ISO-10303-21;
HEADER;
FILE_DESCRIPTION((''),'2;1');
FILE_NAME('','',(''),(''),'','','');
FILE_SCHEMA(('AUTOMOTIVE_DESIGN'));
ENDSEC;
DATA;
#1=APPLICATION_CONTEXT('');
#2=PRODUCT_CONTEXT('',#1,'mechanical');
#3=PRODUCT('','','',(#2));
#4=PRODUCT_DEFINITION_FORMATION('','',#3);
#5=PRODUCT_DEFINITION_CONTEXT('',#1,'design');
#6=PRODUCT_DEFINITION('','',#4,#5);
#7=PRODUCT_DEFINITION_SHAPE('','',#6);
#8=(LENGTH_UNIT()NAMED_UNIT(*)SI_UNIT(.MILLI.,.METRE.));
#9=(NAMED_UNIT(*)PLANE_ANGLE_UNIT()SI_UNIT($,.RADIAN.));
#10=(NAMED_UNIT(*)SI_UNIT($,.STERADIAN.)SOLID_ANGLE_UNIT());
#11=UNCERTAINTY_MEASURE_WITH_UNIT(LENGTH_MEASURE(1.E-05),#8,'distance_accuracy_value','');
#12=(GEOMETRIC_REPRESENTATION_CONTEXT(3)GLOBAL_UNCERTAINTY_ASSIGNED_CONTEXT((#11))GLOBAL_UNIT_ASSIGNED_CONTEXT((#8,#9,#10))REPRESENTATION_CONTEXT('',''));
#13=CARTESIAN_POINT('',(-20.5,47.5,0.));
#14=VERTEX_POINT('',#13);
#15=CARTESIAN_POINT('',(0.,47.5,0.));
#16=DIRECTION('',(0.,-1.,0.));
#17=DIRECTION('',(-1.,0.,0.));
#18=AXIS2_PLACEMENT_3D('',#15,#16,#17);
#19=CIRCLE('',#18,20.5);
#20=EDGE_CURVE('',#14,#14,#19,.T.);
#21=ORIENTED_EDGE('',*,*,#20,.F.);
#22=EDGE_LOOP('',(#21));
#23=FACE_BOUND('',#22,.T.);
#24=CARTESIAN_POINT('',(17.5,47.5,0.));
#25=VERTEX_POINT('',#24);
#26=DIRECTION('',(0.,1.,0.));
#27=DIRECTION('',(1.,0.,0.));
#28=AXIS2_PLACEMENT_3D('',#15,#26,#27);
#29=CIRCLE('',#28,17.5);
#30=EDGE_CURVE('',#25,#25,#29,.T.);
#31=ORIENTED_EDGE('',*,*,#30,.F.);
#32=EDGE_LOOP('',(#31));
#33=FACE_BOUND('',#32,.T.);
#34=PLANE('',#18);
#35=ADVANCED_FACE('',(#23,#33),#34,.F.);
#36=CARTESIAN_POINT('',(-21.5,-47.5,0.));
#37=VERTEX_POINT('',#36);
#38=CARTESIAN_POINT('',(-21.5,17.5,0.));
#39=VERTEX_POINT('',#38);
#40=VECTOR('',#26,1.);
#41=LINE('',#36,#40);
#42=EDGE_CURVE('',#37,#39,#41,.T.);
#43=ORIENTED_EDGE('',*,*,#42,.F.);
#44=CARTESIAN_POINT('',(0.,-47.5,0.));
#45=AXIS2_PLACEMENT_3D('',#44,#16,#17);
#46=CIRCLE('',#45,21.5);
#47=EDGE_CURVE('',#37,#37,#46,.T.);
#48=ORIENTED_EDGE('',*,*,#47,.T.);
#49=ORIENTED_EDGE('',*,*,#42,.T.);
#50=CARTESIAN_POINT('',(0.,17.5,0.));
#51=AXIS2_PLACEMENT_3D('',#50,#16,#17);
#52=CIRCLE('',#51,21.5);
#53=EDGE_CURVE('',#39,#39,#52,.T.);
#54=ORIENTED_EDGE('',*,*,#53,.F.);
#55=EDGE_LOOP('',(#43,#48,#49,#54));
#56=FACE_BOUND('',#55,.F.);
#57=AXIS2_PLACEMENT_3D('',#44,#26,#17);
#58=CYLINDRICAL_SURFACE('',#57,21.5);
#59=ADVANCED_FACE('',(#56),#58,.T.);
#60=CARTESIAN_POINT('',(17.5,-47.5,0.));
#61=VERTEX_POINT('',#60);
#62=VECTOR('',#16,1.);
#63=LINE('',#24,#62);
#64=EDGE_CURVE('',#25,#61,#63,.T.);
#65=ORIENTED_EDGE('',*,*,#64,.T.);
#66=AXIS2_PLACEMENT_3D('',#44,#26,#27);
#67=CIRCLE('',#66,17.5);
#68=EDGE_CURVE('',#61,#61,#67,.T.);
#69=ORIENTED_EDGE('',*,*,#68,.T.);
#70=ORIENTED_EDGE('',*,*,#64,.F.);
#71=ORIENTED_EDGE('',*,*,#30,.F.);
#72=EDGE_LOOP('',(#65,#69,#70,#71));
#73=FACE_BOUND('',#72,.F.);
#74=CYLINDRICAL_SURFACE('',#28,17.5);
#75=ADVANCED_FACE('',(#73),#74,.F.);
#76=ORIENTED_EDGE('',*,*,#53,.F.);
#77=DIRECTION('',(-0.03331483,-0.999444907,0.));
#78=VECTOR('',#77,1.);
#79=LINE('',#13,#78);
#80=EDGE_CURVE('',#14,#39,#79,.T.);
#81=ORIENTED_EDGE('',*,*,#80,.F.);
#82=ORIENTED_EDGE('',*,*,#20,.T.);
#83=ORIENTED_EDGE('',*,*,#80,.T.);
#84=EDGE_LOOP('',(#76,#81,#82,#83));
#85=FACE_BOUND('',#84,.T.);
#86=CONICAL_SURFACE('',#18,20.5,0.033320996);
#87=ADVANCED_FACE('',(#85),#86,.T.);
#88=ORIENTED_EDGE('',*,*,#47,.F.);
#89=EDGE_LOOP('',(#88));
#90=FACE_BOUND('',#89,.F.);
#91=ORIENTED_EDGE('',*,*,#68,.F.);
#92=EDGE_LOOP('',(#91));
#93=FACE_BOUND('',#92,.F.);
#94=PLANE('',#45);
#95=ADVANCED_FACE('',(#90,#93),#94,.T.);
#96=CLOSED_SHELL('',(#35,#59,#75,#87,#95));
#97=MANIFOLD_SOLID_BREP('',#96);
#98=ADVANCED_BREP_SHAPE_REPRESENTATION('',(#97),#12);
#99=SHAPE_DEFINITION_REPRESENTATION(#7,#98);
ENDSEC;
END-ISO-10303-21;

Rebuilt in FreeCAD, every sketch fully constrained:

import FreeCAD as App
import Part
import Sketcher
from FreeCAD import Vector


def add_polygon(sketch, points):
    """Adds a closed chain of lines whose ends are joined by coincident constraints."""
    first, n = sketch.GeometryCount, len(points)
    for a, b in zip(points, points[1:] + points[:1]):
        sketch.addGeometry(Part.LineSegment(App.Vector(*a, 0), App.Vector(*b, 0)), False)
    for i in range(n):
        sketch.addConstraint(Sketcher.Constraint("Coincident", first + i, 2, first + (i + 1) % n, 1))

doc = App.newDocument("Part")
params = doc.addObject("Spreadsheet::Sheet", "Params")
for row, (alias, value) in enumerate([
    ("sketch1_height", "95 mm"),
    ("sketch1_width", "20.5 mm"),
    ("sketch1_width2", "21.5 mm"),
    ("revolution_angle", "360 deg"),
    ("sketch2_diameter", "35 mm"),
    ("pocket1_length", "150 mm"),
], start=1):
    params.set(f"A{row}", alias)
    params.set(f"B{row}", "=" + value)
    params.setAlias(f"B{row}", alias)

body = doc.addObject("PartDesign::Body", "Body")

# Sketch on XY plane
sketch1 = body.newObject("Sketcher::SketchObject", "Sketch")
sketch1.AttachmentSupport = (doc.getObject("XY_Plane"), [""])
sketch1.MapMode = "FlatFace"
add_polygon(sketch1, [(0, -48), (0, 48), (-20, 48), (-22, 18), (-22, -48)])  # lines 0-4
sketch1.addConstraint([
    Sketcher.Constraint("Vertical", 0),
    Sketcher.Constraint("Horizontal", 1),
    Sketcher.Constraint("Vertical", 3),
    Sketcher.Constraint("Horizontal", 4),
    Sketcher.Constraint("Symmetric", 0, 2, 4, 2, -1, 1),
    Sketcher.Constraint("DistanceY", 0, 1, 0, 2, 95.0),
    Sketcher.Constraint("DistanceX", 1, 2, 1, 1, 20.5),
    Sketcher.Constraint("DistanceX", 4, 1, 4, 2, 21.5),
    Sketcher.Constraint("DistanceY", 2, 2, 1, 2, 30.0),
])
sketch1.setExpression("Constraints[10]", "Params.sketch1_height")
sketch1.setExpression("Constraints[11]", "Params.sketch1_width")
sketch1.setExpression("Constraints[12]", "Params.sketch1_width2")
revolution = body.newObject("PartDesign::Revolution", "Revolution")
revolution.Profile = sketch1
revolution.ReferenceAxis = (sketch1, ["V_Axis"])
revolution.setExpression("Angle", "Params.revolution_angle")

# Sketch on XZ plane
sketch2 = body.newObject("Sketcher::SketchObject", "Sketch001")
sketch2.AttachmentSupport = (doc.getObject("XZ_Plane"), [""])
sketch2.MapMode = "FlatFace"
sketch2.AttachmentOffset = App.Placement(Vector(0, 0, -47.5), App.Rotation())
sketch2.addGeometry(Part.Circle(Vector(0, 0, 0), Vector(0, 0, 1), 18), False)
sketch2.addConstraint([
    Sketcher.Constraint("Coincident", 0, 3, -1, 1),
    Sketcher.Constraint("Diameter", 0, 35.0),
])
sketch2.setExpression("Constraints[1]", "Params.sketch2_diameter")
pocket1 = body.newObject("PartDesign::Pocket", "Pocket")
pocket1.Profile = sketch2
pocket1.setExpression("Length", "Params.pocket1_length")
pocket1.Reversed = True

doc.recompute()
